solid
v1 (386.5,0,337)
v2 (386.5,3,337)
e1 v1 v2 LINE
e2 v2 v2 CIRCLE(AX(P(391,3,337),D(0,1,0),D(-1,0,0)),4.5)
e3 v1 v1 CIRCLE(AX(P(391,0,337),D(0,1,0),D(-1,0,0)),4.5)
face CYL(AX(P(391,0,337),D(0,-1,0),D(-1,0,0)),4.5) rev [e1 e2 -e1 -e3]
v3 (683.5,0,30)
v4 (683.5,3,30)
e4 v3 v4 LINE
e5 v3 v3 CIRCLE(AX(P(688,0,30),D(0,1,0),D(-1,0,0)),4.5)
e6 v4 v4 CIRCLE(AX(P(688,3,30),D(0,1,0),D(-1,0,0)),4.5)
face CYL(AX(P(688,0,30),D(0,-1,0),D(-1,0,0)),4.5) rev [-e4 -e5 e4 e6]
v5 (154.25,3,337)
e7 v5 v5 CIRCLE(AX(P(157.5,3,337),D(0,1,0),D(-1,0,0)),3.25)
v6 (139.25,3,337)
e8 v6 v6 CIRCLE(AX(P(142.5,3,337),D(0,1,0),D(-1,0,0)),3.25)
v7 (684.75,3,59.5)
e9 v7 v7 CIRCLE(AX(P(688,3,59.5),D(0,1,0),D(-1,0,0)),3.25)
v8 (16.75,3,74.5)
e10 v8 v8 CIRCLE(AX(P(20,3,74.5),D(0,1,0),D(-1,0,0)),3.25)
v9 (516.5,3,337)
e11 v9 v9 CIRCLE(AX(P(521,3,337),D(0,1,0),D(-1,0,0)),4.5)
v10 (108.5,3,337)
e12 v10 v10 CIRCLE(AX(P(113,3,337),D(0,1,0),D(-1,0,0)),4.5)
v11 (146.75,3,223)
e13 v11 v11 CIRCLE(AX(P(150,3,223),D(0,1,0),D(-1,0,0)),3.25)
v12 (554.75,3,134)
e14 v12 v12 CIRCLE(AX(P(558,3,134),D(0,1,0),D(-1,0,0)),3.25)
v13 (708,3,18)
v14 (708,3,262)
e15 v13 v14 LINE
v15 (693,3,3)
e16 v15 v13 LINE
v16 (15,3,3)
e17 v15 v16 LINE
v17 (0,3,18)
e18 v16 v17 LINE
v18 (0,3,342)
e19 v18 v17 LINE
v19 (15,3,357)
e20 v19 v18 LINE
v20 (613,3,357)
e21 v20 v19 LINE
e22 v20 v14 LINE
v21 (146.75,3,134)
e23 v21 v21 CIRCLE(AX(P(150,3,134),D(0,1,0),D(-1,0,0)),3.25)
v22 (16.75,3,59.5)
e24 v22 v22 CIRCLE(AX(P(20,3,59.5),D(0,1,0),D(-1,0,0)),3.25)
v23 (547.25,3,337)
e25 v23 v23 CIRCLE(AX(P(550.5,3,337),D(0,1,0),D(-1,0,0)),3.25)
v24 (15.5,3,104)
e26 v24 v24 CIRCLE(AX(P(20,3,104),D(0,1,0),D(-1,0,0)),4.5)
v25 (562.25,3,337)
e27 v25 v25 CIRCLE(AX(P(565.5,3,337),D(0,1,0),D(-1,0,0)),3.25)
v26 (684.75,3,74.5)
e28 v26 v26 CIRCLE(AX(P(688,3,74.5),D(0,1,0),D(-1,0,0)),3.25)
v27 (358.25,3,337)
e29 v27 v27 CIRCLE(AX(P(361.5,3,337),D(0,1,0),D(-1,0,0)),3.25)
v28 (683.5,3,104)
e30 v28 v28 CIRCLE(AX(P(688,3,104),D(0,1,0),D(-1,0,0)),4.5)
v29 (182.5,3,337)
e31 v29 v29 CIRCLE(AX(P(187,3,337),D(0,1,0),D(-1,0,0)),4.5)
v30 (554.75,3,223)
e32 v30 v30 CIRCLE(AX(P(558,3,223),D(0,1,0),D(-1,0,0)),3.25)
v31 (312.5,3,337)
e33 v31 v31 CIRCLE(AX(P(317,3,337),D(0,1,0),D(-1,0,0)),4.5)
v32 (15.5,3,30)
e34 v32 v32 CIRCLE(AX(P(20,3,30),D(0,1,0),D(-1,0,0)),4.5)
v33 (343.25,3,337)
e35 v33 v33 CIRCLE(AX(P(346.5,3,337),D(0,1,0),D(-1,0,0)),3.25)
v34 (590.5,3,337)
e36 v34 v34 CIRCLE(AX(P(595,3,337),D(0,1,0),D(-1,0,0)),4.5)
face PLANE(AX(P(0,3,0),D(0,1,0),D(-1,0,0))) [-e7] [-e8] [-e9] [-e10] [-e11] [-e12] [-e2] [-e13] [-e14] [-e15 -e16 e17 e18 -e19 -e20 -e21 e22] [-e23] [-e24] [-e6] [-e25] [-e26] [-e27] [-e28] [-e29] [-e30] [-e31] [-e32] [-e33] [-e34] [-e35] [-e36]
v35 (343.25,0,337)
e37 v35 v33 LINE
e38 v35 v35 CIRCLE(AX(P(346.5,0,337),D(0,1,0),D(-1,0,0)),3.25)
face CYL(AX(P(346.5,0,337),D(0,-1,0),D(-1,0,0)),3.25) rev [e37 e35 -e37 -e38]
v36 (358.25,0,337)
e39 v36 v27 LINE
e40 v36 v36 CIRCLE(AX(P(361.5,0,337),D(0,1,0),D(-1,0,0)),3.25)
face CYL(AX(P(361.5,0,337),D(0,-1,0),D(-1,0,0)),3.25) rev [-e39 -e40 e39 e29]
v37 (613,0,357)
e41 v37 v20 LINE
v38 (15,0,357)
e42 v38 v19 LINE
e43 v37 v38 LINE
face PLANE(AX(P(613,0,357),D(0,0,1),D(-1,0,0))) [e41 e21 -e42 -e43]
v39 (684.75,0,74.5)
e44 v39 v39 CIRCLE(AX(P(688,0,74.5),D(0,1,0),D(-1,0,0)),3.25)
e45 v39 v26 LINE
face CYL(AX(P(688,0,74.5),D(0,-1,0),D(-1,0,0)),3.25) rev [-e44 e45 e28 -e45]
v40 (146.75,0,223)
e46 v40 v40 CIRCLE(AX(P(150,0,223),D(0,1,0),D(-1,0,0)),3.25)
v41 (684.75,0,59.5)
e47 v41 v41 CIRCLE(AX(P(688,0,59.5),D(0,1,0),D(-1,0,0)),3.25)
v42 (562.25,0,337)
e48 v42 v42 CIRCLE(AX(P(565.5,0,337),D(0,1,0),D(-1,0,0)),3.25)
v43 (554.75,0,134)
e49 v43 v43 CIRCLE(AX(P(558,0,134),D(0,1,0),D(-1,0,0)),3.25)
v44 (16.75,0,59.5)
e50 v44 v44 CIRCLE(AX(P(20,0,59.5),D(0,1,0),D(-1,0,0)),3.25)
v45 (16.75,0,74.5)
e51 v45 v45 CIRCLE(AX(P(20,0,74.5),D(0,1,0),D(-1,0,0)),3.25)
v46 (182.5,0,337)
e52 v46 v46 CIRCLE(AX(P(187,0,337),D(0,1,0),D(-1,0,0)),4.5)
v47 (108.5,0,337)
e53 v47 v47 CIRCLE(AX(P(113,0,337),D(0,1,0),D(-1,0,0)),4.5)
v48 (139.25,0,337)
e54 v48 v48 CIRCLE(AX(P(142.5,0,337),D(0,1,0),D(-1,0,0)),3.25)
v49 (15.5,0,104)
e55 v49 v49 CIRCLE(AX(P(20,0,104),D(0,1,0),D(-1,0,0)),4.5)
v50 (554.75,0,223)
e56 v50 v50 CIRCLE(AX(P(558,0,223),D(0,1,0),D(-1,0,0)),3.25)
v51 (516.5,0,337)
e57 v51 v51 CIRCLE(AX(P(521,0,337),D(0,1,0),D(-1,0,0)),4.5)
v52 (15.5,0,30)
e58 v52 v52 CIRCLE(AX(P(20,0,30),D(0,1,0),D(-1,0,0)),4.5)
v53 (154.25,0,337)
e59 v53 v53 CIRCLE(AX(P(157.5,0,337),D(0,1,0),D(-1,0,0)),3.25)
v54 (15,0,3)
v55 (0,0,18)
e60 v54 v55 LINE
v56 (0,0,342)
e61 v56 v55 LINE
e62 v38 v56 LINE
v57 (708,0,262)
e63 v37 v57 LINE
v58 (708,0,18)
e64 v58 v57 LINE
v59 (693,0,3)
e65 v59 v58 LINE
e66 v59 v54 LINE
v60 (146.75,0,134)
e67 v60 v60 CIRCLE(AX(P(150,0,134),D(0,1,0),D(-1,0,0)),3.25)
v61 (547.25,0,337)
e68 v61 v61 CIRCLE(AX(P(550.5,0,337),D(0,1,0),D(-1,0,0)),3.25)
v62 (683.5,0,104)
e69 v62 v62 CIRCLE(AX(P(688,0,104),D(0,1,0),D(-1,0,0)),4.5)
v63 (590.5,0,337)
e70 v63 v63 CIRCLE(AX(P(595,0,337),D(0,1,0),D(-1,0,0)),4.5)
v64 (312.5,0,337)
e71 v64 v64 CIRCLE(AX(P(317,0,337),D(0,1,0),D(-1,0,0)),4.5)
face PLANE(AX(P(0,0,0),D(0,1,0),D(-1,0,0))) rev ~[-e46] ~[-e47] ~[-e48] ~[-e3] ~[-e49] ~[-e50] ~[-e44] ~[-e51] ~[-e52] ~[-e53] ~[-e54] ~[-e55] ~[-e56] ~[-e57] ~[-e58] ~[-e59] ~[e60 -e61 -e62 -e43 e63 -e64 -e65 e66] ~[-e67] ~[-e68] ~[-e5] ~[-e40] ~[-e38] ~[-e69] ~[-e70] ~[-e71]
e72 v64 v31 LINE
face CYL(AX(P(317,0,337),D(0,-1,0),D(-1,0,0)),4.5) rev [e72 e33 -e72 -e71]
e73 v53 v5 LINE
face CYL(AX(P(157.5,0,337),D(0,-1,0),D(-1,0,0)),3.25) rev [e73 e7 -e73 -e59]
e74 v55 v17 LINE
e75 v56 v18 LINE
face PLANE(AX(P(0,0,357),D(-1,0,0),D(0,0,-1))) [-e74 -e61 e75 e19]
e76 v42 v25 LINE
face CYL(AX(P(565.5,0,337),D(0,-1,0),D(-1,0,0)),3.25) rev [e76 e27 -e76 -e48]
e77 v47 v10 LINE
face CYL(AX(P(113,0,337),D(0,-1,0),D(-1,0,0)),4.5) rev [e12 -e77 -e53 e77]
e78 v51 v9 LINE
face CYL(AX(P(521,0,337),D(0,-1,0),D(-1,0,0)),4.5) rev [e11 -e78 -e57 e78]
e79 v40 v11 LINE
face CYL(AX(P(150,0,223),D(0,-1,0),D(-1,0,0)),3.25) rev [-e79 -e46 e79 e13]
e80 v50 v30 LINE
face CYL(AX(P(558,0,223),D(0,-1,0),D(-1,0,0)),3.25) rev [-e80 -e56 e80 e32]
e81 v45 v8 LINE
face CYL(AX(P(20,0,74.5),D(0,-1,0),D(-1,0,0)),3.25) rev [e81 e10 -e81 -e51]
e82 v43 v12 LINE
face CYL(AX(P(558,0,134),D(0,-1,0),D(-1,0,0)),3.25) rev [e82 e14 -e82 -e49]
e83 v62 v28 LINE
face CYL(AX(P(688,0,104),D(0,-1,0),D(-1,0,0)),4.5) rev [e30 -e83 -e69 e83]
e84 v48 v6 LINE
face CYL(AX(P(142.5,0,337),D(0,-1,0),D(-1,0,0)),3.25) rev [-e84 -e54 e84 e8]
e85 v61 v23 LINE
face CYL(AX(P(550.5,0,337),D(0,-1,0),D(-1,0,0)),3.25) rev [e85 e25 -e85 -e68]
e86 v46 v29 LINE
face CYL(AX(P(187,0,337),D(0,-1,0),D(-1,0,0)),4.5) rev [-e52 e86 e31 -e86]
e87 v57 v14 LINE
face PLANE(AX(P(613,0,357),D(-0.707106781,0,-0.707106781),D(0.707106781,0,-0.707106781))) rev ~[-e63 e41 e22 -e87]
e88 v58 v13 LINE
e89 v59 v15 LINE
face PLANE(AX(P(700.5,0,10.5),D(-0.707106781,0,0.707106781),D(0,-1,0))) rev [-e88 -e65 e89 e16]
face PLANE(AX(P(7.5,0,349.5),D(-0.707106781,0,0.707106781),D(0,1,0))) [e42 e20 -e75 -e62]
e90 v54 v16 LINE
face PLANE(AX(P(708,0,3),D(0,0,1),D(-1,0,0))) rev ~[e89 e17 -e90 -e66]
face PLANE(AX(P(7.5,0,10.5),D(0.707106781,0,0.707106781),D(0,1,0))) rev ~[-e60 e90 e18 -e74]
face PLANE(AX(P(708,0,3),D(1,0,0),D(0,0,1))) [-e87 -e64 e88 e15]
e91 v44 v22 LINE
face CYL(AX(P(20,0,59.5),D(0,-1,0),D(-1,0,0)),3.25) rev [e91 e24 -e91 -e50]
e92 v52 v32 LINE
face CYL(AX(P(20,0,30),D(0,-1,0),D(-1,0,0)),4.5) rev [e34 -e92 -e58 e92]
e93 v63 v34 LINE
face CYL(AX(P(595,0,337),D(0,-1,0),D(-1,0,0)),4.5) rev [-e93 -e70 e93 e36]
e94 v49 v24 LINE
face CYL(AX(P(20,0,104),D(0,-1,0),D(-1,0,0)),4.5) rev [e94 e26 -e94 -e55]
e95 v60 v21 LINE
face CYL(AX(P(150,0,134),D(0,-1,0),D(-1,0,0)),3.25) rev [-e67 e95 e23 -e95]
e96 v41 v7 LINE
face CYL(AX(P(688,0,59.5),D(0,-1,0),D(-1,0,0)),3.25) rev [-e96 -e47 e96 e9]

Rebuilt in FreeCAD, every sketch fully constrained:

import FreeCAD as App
import Part
import Sketcher


def edges_at(feature, points):
    """Names of the edges that pass closest to the given points."""
    edges = feature.Shape.Edges
    near = lambda p: min(range(len(edges)), key=lambda i: edges[i].distToShape(Part.Vertex(*p))[0])
    return sorted({f"Edge{near(p) + 1}" for p in points})


def add_polygon(sketch, points):
    """Adds a closed chain of lines whose ends are joined by coincident constraints."""
    first, n = sketch.GeometryCount, len(points)
    for a, b in zip(points, points[1:] + points[:1]):
        sketch.addGeometry(Part.LineSegment(App.Vector(*a, 0), App.Vector(*b, 0)), False)
    for i in range(n):
        sketch.addConstraint(Sketcher.Constraint("Coincident", first + i, 2, first + (i + 1) % n, 1))

doc = App.newDocument("Part")
params = doc.addObject("Spreadsheet::Sheet", "Params")
for row, (alias, value) in enumerate([
    ("sketch1_diameter", "9 mm"),
    ("sketch1_diameter2", "6.5 mm"),
    ("sketch1_width", "708 mm"),
    ("pad1_length", "3 mm"),
    ("chamfer_size", "15 mm"),
], start=1):
    params.set(f"A{row}", alias)
    params.set(f"B{row}", "=" + value)
    params.setAlias(f"B{row}", alias)

body = doc.addObject("PartDesign::Body", "Body")

# Sketch on XZ plane
sketch1 = body.newObject("Sketcher::SketchObject", "Sketch")
sketch1.AttachmentSupport = (doc.getObject("XZ_Plane"), [""])
sketch1.MapMode = "FlatFace"
add_polygon(sketch1, [(708, 3), (0, 3), (0, 357), (613, 357), (708, 262)])  # lines 0-4
sketch1.addGeometry(Part.Circle(App.Vector(688, 30, 0), App.Vector(0, 0, 1), 4.5), False)  # 5
sketch1.addGeometry(Part.Circle(App.Vector(688, 59.5, 0), App.Vector(0, 0, 1), 3.2), False)  # 6
sketch1.addGeometry(Part.Circle(App.Vector(688, 74.5, 0), App.Vector(0, 0, 1), 3.2), False)  # 7
sketch1.addGeometry(Part.Circle(App.Vector(688, 104, 0), App.Vector(0, 0, 1), 4.5), False)  # 8
sketch1.addGeometry(Part.Circle(App.Vector(558, 134, 0), App.Vector(0, 0, 1), 3.2), False)  # 9
sketch1.addGeometry(Part.Circle(App.Vector(20, 30, 0), App.Vector(0, 0, 1), 4.5), False)  # 10
sketch1.addGeometry(Part.Circle(App.Vector(20, 59.5, 0), App.Vector(0, 0, 1), 3.2), False)  # 11
sketch1.addGeometry(Part.Circle(App.Vector(20, 74.5, 0), App.Vector(0, 0, 1), 3.2), False)  # 12
sketch1.addGeometry(Part.Circle(App.Vector(20, 104, 0), App.Vector(0, 0, 1), 4.5), False)  # 13
sketch1.addGeometry(Part.Circle(App.Vector(150, 134, 0), App.Vector(0, 0, 1), 3.2), False)  # 14
sketch1.addGeometry(Part.Circle(App.Vector(558, 223, 0), App.Vector(0, 0, 1), 3.2), False)  # 15
sketch1.addGeometry(Part.Circle(App.Vector(595, 337, 0), App.Vector(0, 0, 1), 4.5), False)  # 16
sketch1.addGeometry(Part.Circle(App.Vector(565.5, 337, 0), App.Vector(0, 0, 1), 3.2), False)  # 17
sketch1.addGeometry(Part.Circle(App.Vector(550.5, 337, 0), App.Vector(0, 0, 1), 3.2), False)  # 18
sketch1.addGeometry(Part.Circle(App.Vector(521, 337, 0), App.Vector(0, 0, 1), 4.5), False)  # 19
sketch1.addGeometry(Part.Circle(App.Vector(391, 337, 0), App.Vector(0, 0, 1), 4.5), False)  # 20
sketch1.addGeometry(Part.Circle(App.Vector(361.5, 337, 0), App.Vector(0, 0, 1), 3.2), False)  # 21
sketch1.addGeometry(Part.Circle(App.Vector(150, 223, 0), App.Vector(0, 0, 1), 3.2), False)  # 22
sketch1.addGeometry(Part.Circle(App.Vector(346.5, 337, 0), App.Vector(0, 0, 1), 3.2), False)  # 23
sketch1.addGeometry(Part.Circle(App.Vector(317, 337, 0), App.Vector(0, 0, 1), 4.5), False)  # 24
sketch1.addGeometry(Part.Circle(App.Vector(187, 337, 0), App.Vector(0, 0, 1), 4.5), False)  # 25
sketch1.addGeometry(Part.Circle(App.Vector(157.5, 337, 0), App.Vector(0, 0, 1), 3.2), False)  # 26
sketch1.addGeometry(Part.Circle(App.Vector(142.5, 337, 0), App.Vector(0, 0, 1), 3.2), False)  # 27
sketch1.addGeometry(Part.Circle(App.Vector(113, 337, 0), App.Vector(0, 0, 1), 4.5), False)  # 28
sketch1.addConstraint([
    Sketcher.Constraint("Horizontal", 0),
    Sketcher.Constraint("Vertical", 1),
    Sketcher.Constraint("Horizontal", 2),
    Sketcher.Constraint("Vertical", 4),
    Sketcher.Constraint("Equal", 6, 7),
    Sketcher.Constraint("Equal", 5, 8),
    Sketcher.Constraint("Equal", 7, 9),
    Sketcher.Constraint("Equal", 8, 10),
    Sketcher.Constraint("Equal", 9, 11),
    Sketcher.Constraint("Equal", 11, 12),
    Sketcher.Constraint("Equal", 10, 13),
    Sketcher.Constraint("Equal", 12, 14),
    Sketcher.Constraint("Equal", 14, 15),
    Sketcher.Constraint("Equal", 13, 16),
    Sketcher.Constraint("Equal", 15, 17),
    Sketcher.Constraint("Equal", 17, 18),
    Sketcher.Constraint("Equal", 16, 19),
    Sketcher.Constraint("Equal", 19, 20),
    Sketcher.Constraint("Equal", 18, 21),
    Sketcher.Constraint("Equal", 21, 22),
    Sketcher.Constraint("Equal", 22, 23),
    Sketcher.Constraint("Equal", 20, 24),
    Sketcher.Constraint("Equal", 24, 25),
    Sketcher.Constraint("Equal", 23, 26),
    Sketcher.Constraint("Equal", 26, 27),
    Sketcher.Constraint("Equal", 25, 28),
    Sketcher.Constraint("PointOnObject", 0, 2, -2),
    Sketcher.Constraint("Horizontal", 5, 3, 10, 3),
    Sketcher.Constraint("Horizontal", 6, 3, 11, 3),
    Sketcher.Constraint("Horizontal", 7, 3, 12, 3),
    Sketcher.Constraint("Horizontal", 8, 3, 13, 3),
    Sketcher.Constraint("Horizontal", 9, 3, 14, 3),
    Sketcher.Constraint("Horizontal", 16, 3, 17, 3),
    Sketcher.Constraint("Horizontal", 17, 3, 18, 3),
    Sketcher.Constraint("Horizontal", 18, 3, 19, 3),
    Sketcher.Constraint("Horizontal", 19, 3, 20, 3),
    Sketcher.Constraint("Horizontal", 20, 3, 21, 3),
    Sketcher.Constraint("Horizontal", 15, 3, 22, 3),
    Sketcher.Constraint("Horizontal", 21, 3, 23, 3),
    Sketcher.Constraint("Horizontal", 23, 3, 24, 3),
    Sketcher.Constraint("Horizontal", 24, 3, 25, 3),
    Sketcher.Constraint("Horizontal", 25, 3, 26, 3),
    Sketcher.Constraint("Horizontal", 26, 3, 27, 3),
    Sketcher.Constraint("Horizontal", 27, 3, 28, 3),
    Sketcher.Constraint("Vertical", 5, 3, 6, 3),
    Sketcher.Constraint("Vertical", 6, 3, 7, 3),
    Sketcher.Constraint("Vertical", 7, 3, 8, 3),
    Sketcher.Constraint("Vertical", 10, 3, 11, 3),
    Sketcher.Constraint("Vertical", 11, 3, 12, 3),
    Sketcher.Constraint("Vertical", 12, 3, 13, 3),
    Sketcher.Constraint("Vertical", 9, 3, 15, 3),
    Sketcher.Constraint("Vertical", 14, 3, 22, 3),
    Sketcher.Constraint("Diameter", 5, 9.0),
    Sketcher.Constraint("Diameter", 6, 6.5),
    Sketcher.Constraint("DistanceX", 0, 2, 0, 1, 708.0),
    Sketcher.Constraint("DistanceX", -1, 1, 10, 3, 20.0),
    Sketcher.Constraint("DistanceX", -1, 1, 14, 3, 150.0),
    Sketcher.Constraint("DistanceY", -1, 1, 0, 2, 3.0),
    Sketcher.Constraint("DistanceY", -1, 1, 1, 2, 357.0),
    Sketcher.Constraint("DistanceX", 15, 3, 16, 3, 37.0),
    Sketcher.Constraint("DistanceX", 19, 3, 15, 3, 37.0),
    Sketcher.Constraint("DistanceX", 22, 3, 25, 3, 37.0),
    Sketcher.Constraint("DistanceX", 28, 3, 22, 3, 37.0),
    Sketcher.Constraint("DistanceY", 28, 3, 1, 2, 20.0),
    Sketcher.Constraint("DistanceX", 2, 2, 3, 2, 95.0),
    Sketcher.Constraint("DistanceY", 3, 2, 2, 2, 95.0),
    Sketcher.Constraint("DistanceX", 15, 3, 3, 2, 150.0),
    Sketcher.Constraint("DistanceX", 8, 3, 3, 2, 20.0),
    Sketcher.Constraint("DistanceY", 5, 3, 7, 3, 44.5),
    Sketcher.Constraint("DistanceY", 6, 3, 8, 3, 44.5),
    Sketcher.Constraint("DistanceX", 15, 3, 17, 3, 7.5),
    Sketcher.Constraint("DistanceX", 18, 3, 16, 3, 44.5),
    Sketcher.Constraint("DistanceX", 23, 3, 20, 3, 44.5),
    Sketcher.Constraint("DistanceX", 24, 3, 21, 3, 44.5),
    Sketcher.Constraint("DistanceX", 22, 3, 26, 3, 7.5),
    Sketcher.Constraint("DistanceX", 27, 3, 25, 3, 44.5),
    Sketcher.Constraint("DistanceY", -1, 1, 5, 3, 30.0),
    Sketcher.Constraint("DistanceY", -1, 1, 8, 3, 104.0),
    Sketcher.Constraint("DistanceY", -1, 1, 9, 3, 134.0),
    Sketcher.Constraint("DistanceY", -1, 1, 15, 3, 223.0),
    Sketcher.Constraint("DistanceX", -1, 1, 20, 3, 391.0),
    Sketcher.Constraint("DistanceX", -1, 1, 24, 3, 317.0),
])
sketch1.setExpression("Constraints[57]", "Params.sketch1_diameter")
sketch1.setExpression("Constraints[58]", "Params.sketch1_diameter2")
sketch1.setExpression("Constraints[59]", "Params.sketch1_width")
pad1 = body.newObject("PartDesign::Pad", "Pad")
pad1.Profile = sketch1
pad1.setExpression("Length", "Params.pad1_length")
pad1.Reversed = True
doc.recompute()

chamfer = body.newObject("PartDesign::Chamfer", "Chamfer")
chamfer.Base = (pad1, edges_at(pad1, [(0, 1.5, 357), (0, 1.5, 3), (708, 1.5, 3)]))
chamfer.setExpression("Size", "Params.chamfer_size")

doc.recompute()
